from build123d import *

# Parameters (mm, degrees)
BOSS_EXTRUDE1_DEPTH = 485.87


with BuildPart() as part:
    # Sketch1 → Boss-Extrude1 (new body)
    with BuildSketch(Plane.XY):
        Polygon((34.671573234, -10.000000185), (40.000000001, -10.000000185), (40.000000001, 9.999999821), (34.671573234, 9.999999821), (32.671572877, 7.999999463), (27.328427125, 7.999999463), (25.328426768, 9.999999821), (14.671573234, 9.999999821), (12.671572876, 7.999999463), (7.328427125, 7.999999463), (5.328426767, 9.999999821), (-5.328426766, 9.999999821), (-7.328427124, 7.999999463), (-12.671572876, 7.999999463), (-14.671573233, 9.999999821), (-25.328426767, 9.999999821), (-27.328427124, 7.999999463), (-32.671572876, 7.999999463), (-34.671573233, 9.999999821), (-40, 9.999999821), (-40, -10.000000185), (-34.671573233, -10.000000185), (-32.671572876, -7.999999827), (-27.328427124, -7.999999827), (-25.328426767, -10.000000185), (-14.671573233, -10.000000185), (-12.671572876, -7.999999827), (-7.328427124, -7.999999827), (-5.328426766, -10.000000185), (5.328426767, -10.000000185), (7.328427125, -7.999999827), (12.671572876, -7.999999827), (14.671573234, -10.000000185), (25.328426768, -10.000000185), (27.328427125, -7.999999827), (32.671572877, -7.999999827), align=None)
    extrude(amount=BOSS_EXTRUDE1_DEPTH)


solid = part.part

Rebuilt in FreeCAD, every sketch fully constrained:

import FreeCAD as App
import Part
import Sketcher
from FreeCAD import Vector
Q = App.Units.Quantity

doc = App.newDocument("Part")
body = doc.addObject("PartDesign::Body", "Body")

# Sketch on XY plane
sketch1 = body.newObject("Sketcher::SketchObject", "Sketch")
sketch1.AttachmentSupport = (doc.getObject("XY_Plane"), [""])
sketch1.MapMode = "FlatFace"
sketch1.addGeometry(Part.LineSegment(Vector(34.7, -10, 0), Vector(40, -10, 0)), False)
sketch1.addGeometry(Part.LineSegment(Vector(40, -10, 0), Vector(40, 10, 0)), False)
sketch1.addGeometry(Part.LineSegment(Vector(40, 10, 0), Vector(34.7, 10, 0)), False)
sketch1.addGeometry(Part.LineSegment(Vector(34.7, 10, 0), Vector(32.7, 8, 0)), False)
sketch1.addGeometry(Part.LineSegment(Vector(32.7, 8, 0), Vector(27.3, 8, 0)), False)
sketch1.addGeometry(Part.LineSegment(Vector(27.3, 8, 0), Vector(25.3, 10, 0)), False)
sketch1.addGeometry(Part.LineSegment(Vector(25.3, 10, 0), Vector(14.7, 10, 0)), False)
sketch1.addGeometry(Part.LineSegment(Vector(14.7, 10, 0), Vector(12.7, 8, 0)), False)
sketch1.addGeometry(Part.LineSegment(Vector(12.7, 8, 0), Vector(7.3, 8, 0)), False)
sketch1.addGeometry(Part.LineSegment(Vector(7.3, 8, 0), Vector(5.3, 10, 0)), False)
sketch1.addGeometry(Part.LineSegment(Vector(5.3, 10, 0), Vector(-5.3, 10, 0)), False)
sketch1.addGeometry(Part.LineSegment(Vector(-5.3, 10, 0), Vector(-7.3, 8, 0)), False)
sketch1.addGeometry(Part.LineSegment(Vector(-7.3, 8, 0), Vector(-12.7, 8, 0)), False)
sketch1.addGeometry(Part.LineSegment(Vector(-12.7, 8, 0), Vector(-14.7, 10, 0)), False)
sketch1.addGeometry(Part.LineSegment(Vector(-14.7, 10, 0), Vector(-25.3, 10, 0)), False)
sketch1.addGeometry(Part.LineSegment(Vector(-25.3, 10, 0), Vector(-27.3, 8, 0)), False)
sketch1.addGeometry(Part.LineSegment(Vector(-27.3, 8, 0), Vector(-32.7, 8, 0)), False)
sketch1.addGeometry(Part.LineSegment(Vector(-32.7, 8, 0), Vector(-34.7, 10, 0)), False)
sketch1.addGeometry(Part.LineSegment(Vector(-34.7, 10, 0), Vector(-40, 10, 0)), False)
sketch1.addGeometry(Part.LineSegment(Vector(-40, 10, 0), Vector(-40, -10, 0)), False)
sketch1.addGeometry(Part.LineSegment(Vector(-40, -10, 0), Vector(-34.7, -10, 0)), False)
sketch1.addGeometry(Part.LineSegment(Vector(-34.7, -10, 0), Vector(-32.7, -8, 0)), False)
sketch1.addGeometry(Part.LineSegment(Vector(-32.7, -8, 0), Vector(-27.3, -8, 0)), False)
sketch1.addGeometry(Part.LineSegment(Vector(-27.3, -8, 0), Vector(-25.3, -10, 0)), False)
sketch1.addGeometry(Part.LineSegment(Vector(-25.3, -10, 0), Vector(-14.7, -10, 0)), False)
sketch1.addGeometry(Part.LineSegment(Vector(-14.7, -10, 0), Vector(-12.7, -8, 0)), False)
sketch1.addGeometry(Part.LineSegment(Vector(-12.7, -8, 0), Vector(-7.3, -8, 0)), False)
sketch1.addGeometry(Part.LineSegment(Vector(-7.3, -8, 0), Vector(-5.3, -10, 0)), False)
sketch1.addGeometry(Part.LineSegment(Vector(-5.3, -10, 0), Vector(5.3, -10, 0)), False)
sketch1.addGeometry(Part.LineSegment(Vector(5.3, -10, 0), Vector(7.3, -8, 0)), False)
sketch1.addGeometry(Part.LineSegment(Vector(7.3, -8, 0), Vector(12.7, -8, 0)), False)
sketch1.addGeometry(Part.LineSegment(Vector(12.7, -8, 0), Vector(14.7, -10, 0)), False)
sketch1.addGeometry(Part.LineSegment(Vector(14.7, -10, 0), Vector(25.3, -10, 0)), False)
sketch1.addGeometry(Part.LineSegment(Vector(25.3, -10, 0), Vector(27.3, -8, 0)), False)
sketch1.addGeometry(Part.LineSegment(Vector(27.3, -8, 0), Vector(32.7, -8, 0)), False)
sketch1.addGeometry(Part.LineSegment(Vector(32.7, -8, 0), Vector(34.7, -10, 0)), False)
sketch1.addConstraint(Sketcher.Constraint("Coincident", 0, 2, 1, 1))
sketch1.addConstraint(Sketcher.Constraint("Coincident", 1, 2, 2, 1))
sketch1.addConstraint(Sketcher.Constraint("Coincident", 2, 2, 3, 1))
sketch1.addConstraint(Sketcher.Constraint("Coincident", 3, 2, 4, 1))
sketch1.addConstraint(Sketcher.Constraint("Coincident", 4, 2, 5, 1))
sketch1.addConstraint(Sketcher.Constraint("Coincident", 5, 2, 6, 1))
sketch1.addConstraint(Sketcher.Constraint("Coincident", 6, 2, 7, 1))
sketch1.addConstraint(Sketcher.Constraint("Coincident", 7, 2, 8, 1))
sketch1.addConstraint(Sketcher.Constraint("Coincident", 8, 2, 9, 1))
sketch1.addConstraint(Sketcher.Constraint("Coincident", 9, 2, 10, 1))
sketch1.addConstraint(Sketcher.Constraint("Coincident", 10, 2, 11, 1))
sketch1.addConstraint(Sketcher.Constraint("Coincident", 11, 2, 12, 1))
sketch1.addConstraint(Sketcher.Constraint("Coincident", 12, 2, 13, 1))
sketch1.addConstraint(Sketcher.Constraint("Coincident", 13, 2, 14, 1))
sketch1.addConstraint(Sketcher.Constraint("Coincident", 14, 2, 15, 1))
sketch1.addConstraint(Sketcher.Constraint("Coincident", 15, 2, 16, 1))
sketch1.addConstraint(Sketcher.Constraint("Coincident", 16, 2, 17, 1))
sketch1.addConstraint(Sketcher.Constraint("Coincident", 17, 2, 18, 1))
sketch1.addConstraint(Sketcher.Constraint("Coincident", 18, 2, 19, 1))
sketch1.addConstraint(Sketcher.Constraint("Coincident", 19, 2, 20, 1))
sketch1.addConstraint(Sketcher.Constraint("Coincident", 20, 2, 21, 1))
sketch1.addConstraint(Sketcher.Constraint("Coincident", 21, 2, 22, 1))
sketch1.addConstraint(Sketcher.Constraint("Coincident", 22, 2, 23, 1))
sketch1.addConstraint(Sketcher.Constraint("Coincident", 23, 2, 24, 1))
sketch1.addConstraint(Sketcher.Constraint("Coincident", 24, 2, 25, 1))
sketch1.addConstraint(Sketcher.Constraint("Coincident", 25, 2, 26, 1))
sketch1.addConstraint(Sketcher.Constraint("Coincident", 26, 2, 27, 1))
sketch1.addConstraint(Sketcher.Constraint("Coincident", 27, 2, 28, 1))
sketch1.addConstraint(Sketcher.Constraint("Coincident", 28, 2, 29, 1))
sketch1.addConstraint(Sketcher.Constraint("Coincident", 29, 2, 30, 1))
sketch1.addConstraint(Sketcher.Constraint("Coincident", 30, 2, 31, 1))
sketch1.addConstraint(Sketcher.Constraint("Coincident", 31, 2, 32, 1))
sketch1.addConstraint(Sketcher.Constraint("Coincident", 32, 2, 33, 1))
sketch1.addConstraint(Sketcher.Constraint("Coincident", 33, 2, 34, 1))
sketch1.addConstraint(Sketcher.Constraint("Coincident", 34, 2, 35, 1))
sketch1.addConstraint(Sketcher.Constraint("Coincident", 35, 2, 0, 1))
sketch1.addConstraint(Sketcher.Constraint("Horizontal", 0))
sketch1.addConstraint(Sketcher.Constraint("Vertical", 1))
sketch1.addConstraint(Sketcher.Constraint("Horizontal", 2))
sketch1.addConstraint(Sketcher.Constraint("Horizontal", 4))
sketch1.addConstraint(Sketcher.Constraint("Horizontal", 6))
sketch1.addConstraint(Sketcher.Constraint("Horizontal", 8))
sketch1.addConstraint(Sketcher.Constraint("Horizontal", 10))
sketch1.addConstraint(Sketcher.Constraint("Horizontal", 12))
sketch1.addConstraint(Sketcher.Constraint("Horizontal", 14))
sketch1.addConstraint(Sketcher.Constraint("Horizontal", 16))
sketch1.addConstraint(Sketcher.Constraint("Horizontal", 18))
sketch1.addConstraint(Sketcher.Constraint("Vertical", 19))
sketch1.addConstraint(Sketcher.Constraint("Horizontal", 20))
sketch1.addConstraint(Sketcher.Constraint("Horizontal", 22))
sketch1.addConstraint(Sketcher.Constraint("Horizontal", 24))
sketch1.addConstraint(Sketcher.Constraint("Horizontal", 26))
sketch1.addConstraint(Sketcher.Constraint("Horizontal", 28))
sketch1.addConstraint(Sketcher.Constraint("Horizontal", 30))
sketch1.addConstraint(Sketcher.Constraint("Horizontal", 32))
sketch1.addConstraint(Sketcher.Constraint("Horizontal", 34))
sketch1.addConstraint(Sketcher.Constraint("Symmetric", 0, 2, 18, 2, -1, 1))
sketch1.addConstraint(Sketcher.Constraint("Symmetric", 2, 2, 20, 2, -1, 1))
sketch1.addConstraint(Sketcher.Constraint("Symmetric", 3, 2, 21, 2, -1, 1))
sketch1.addConstraint(Sketcher.Constraint("Symmetric", 5, 2, 23, 2, -1, 1))
sketch1.addConstraint(Sketcher.Constraint("Symmetric", 7, 2, 25, 2, -1, 1))
sketch1.addConstraint(Sketcher.Constraint("Symmetric", 9, 2, 27, 2, -1, 1))
sketch1.addConstraint(Sketcher.Constraint("Symmetric", 11, 2, 29, 2, -1, 1))
sketch1.addConstraint(Sketcher.Constraint("Symmetric", 13, 2, 31, 2, -1, 1))
sketch1.addConstraint(Sketcher.Constraint("Symmetric", 15, 2, 33, 2, -1, 1))
sketch1.addConstraint(Sketcher.Constraint("Symmetric", 8, 2, 11, 2, -2))
sketch1.addConstraint(Sketcher.Constraint("Symmetric", 6, 2, 13, 2, -2))
sketch1.addConstraint(Sketcher.Constraint("Symmetric", 4, 2, 15, 2, -2))
sketch1.addConstraint(Sketcher.Constraint("Symmetric", 2, 2, 17, 2, -2))
sketch1.addConstraint(Sketcher.Constraint("Perpendicular", 3, 5))
sketch1.addConstraint(Sketcher.Constraint("Perpendicular", 5, 7))
sketch1.addConstraint(Sketcher.Constraint("Perpendicular", 7, 9))
sketch1.addConstraint(Sketcher.Constraint("Perpendicular", 9, 11))
sketch1.addConstraint(Sketcher.Constraint("Perpendicular", 11, 13))
sketch1.addConstraint(Sketcher.Constraint("Perpendicular", 13, 15))
sketch1.addConstraint(Sketcher.Constraint("Perpendicular", 15, 17))
sketch1.addConstraint(Sketcher.Constraint("Perpendicular", 21, 23))
sketch1.addConstraint(Sketcher.Constraint("Perpendicular", 23, 25))
sketch1.addConstraint(Sketcher.Constraint("Perpendicular", 25, 27))
sketch1.addConstraint(Sketcher.Constraint("Perpendicular", 27, 29))
sketch1.addConstraint(Sketcher.Constraint("Perpendicular", 29, 31))
sketch1.addConstraint(Sketcher.Constraint("Perpendicular", 31, 33))
sketch1.addConstraint(Sketcher.Constraint("Perpendicular", 33, 35))
sketch1.addConstraint(Sketcher.Constraint("Horizontal", 2, 2, 5, 2))
sketch1.addConstraint(Sketcher.Constraint("Horizontal", 4, 2, 7, 2))
sketch1.addConstraint(Sketcher.Constraint("Horizontal", 6, 2, 9, 2))
sketch1.addConstraint(Sketcher.Constraint("Vertical", 16, 2, 21, 2))
sketch1.addConstraint(Sketcher.Constraint("Vertical", 3, 2, 34, 2))
sketch1.addConstraint(Sketcher.Constraint("Equal", 4, 8))
sketch1.addConstraint(Sketcher.Constraint("Equal", 6, 10))
sketch1.addConstraint(Sketcher.Constraint("DistanceY", 1, 1, 1, 2, Q("20 mm")))
sketch1.addConstraint(Sketcher.Constraint("DistanceX", -1, 1, 0, 2, Q("40 mm")))
sketch1.addConstraint(Sketcher.Constraint("DistanceY", -1, 1, 3, 2, Q("7.999999 mm")))
sketch1.addConstraint(Sketcher.Constraint("DistanceX", 6, 2, 3, 2, Q("18 mm")))
sketch1.addConstraint(Sketcher.Constraint("DistanceX", 0, 1, 0, 2, Q("5.328427 mm")))
pad1 = body.newObject("PartDesign::Pad", "Pad")
pad1.Profile = sketch1
pad1.Length = 485.87

doc.recompute()
